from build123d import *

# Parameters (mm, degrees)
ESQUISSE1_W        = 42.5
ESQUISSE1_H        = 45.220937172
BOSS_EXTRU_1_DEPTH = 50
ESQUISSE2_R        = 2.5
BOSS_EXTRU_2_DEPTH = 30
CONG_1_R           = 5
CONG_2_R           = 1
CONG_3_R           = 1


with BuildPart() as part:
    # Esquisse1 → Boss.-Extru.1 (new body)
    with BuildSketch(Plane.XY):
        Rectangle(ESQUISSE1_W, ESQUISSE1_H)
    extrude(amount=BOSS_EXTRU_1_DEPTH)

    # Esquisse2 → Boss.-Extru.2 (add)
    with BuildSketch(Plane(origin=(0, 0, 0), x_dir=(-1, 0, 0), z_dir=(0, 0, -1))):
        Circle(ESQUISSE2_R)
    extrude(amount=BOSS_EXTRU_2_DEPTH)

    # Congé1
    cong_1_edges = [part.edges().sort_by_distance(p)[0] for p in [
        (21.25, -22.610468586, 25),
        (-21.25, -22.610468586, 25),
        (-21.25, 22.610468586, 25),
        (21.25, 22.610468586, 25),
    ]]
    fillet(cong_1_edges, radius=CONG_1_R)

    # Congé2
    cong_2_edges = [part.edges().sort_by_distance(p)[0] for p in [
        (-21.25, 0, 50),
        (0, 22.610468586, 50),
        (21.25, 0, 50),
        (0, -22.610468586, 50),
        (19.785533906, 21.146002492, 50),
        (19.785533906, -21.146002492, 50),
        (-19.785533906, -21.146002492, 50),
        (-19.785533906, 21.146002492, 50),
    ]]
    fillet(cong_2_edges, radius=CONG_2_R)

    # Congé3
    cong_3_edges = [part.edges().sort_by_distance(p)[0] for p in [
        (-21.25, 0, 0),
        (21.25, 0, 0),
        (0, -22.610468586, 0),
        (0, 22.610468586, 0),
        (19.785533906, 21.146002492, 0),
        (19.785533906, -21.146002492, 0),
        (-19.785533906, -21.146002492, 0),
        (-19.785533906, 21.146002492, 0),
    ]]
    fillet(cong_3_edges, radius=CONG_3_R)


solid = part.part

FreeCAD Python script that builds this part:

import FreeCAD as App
import Part
import Sketcher
Q = App.Units.Quantity


def edges_at(feature, points):
    """Names of the edges that pass closest to the given points."""
    edges = feature.Shape.Edges
    near = lambda p: min(range(len(edges)), key=lambda i: edges[i].distToShape(Part.Vertex(*p))[0])
    return sorted({f"Edge{near(p) + 1}" for p in points})

doc = App.newDocument("Part")
params = doc.addObject("Spreadsheet::Sheet", "Params")
for row, (alias, value) in enumerate([
    ("sketch1_width", "42.5 mm"),
    ("pad1_length", "50 mm"),
    ("sketch2_diameter", "5 mm"),
    ("pad2_length", "30 mm"),
    ("fillet_radius", "5 mm"),
    ("fillet2_radius", "1 mm"),
    ("fillet3_radius", "1 mm"),
], start=1):
    params.set(f"A{row}", alias)
    params.set(f"B{row}", "=" + value)
    params.setAlias(f"B{row}", alias)

body = doc.addObject("PartDesign::Body", "Body")

sketch1 = doc.addObject("Sketcher::SketchObject", "Sketch")
body.addObject(sketch1)
sketch1.AttachmentSupport = (doc.XY_Plane, [""])
sketch1.MapMode = "FlatFace"
sketch1.addGeometry([
    Part.LineSegment(App.Vector(-21, 23, 0), App.Vector(-21, -23, 0)),
    Part.LineSegment(App.Vector(-21, -23, 0), App.Vector(21, -23, 0)),
    Part.LineSegment(App.Vector(21, -23, 0), App.Vector(21, 23, 0)),
    Part.LineSegment(App.Vector(21, 23, 0), App.Vector(-21, 23, 0)),
], False)
sketch1.addConstraint([
    Sketcher.Constraint("Coincident", 0, 2, 1, 1),
    Sketcher.Constraint("Coincident", 1, 2, 2, 1),
    Sketcher.Constraint("Coincident", 2, 2, 3, 1),
    Sketcher.Constraint("Coincident", 3, 2, 0, 1),
    Sketcher.Constraint("Vertical", 0),
    Sketcher.Constraint("Horizontal", 1),
    Sketcher.Constraint("Vertical", 2),
    Sketcher.Constraint("Horizontal", 3),
    Sketcher.Constraint("Symmetric", 0, 2, 2, 2, -1, 1),
    Sketcher.Constraint("DistanceX", 1, 1, 1, 2, Q("42.5 mm")),
    Sketcher.Constraint("DistanceY", 0, 2, 0, 1, Q("45.220937 mm")),
])
sketch1.setExpression("Constraints[9]", "Params.sketch1_width")
pad1 = doc.addObject("PartDesign::Pad", "Pad")
body.addObject(pad1)
pad1.Profile = sketch1
pad1.setExpression("Length", "Params.pad1_length")

sketch2 = doc.addObject("Sketcher::SketchObject", "Sketch001")
body.addObject(sketch2)
sketch2.AttachmentSupport = (doc.XY_Plane, [""])
sketch2.MapMode = "FlatFace"
sketch2.addGeometry(Part.Circle(App.Vector(0, 0, 0), App.Vector(0, 0, 1), 2.5), False)
sketch2.addConstraint([
    Sketcher.Constraint("Coincident", 0, 3, -1, 1),
    Sketcher.Constraint("Diameter", 0, Q("5 mm")),
])
sketch2.setExpression("Constraints[1]", "Params.sketch2_diameter")
pad2 = doc.addObject("PartDesign::Pad", "Pad001")
body.addObject(pad2)
pad2.Profile = sketch2
pad2.setExpression("Length", "Params.pad2_length")
pad2.Reversed = True
doc.recompute()

fillet = doc.addObject("PartDesign::Fillet", "Fillet")
body.addObject(fillet)
fillet.Base = (pad2, edges_at(pad2, [
    (21.25, -22.61, 25),
    (-21.25, -22.61, 25),
    (-21.25, 22.61, 25),
    (21.25, 22.61, 25),
]))
fillet.setExpression("Radius", "Params.fillet_radius")
doc.recompute()

fillet2 = doc.addObject("PartDesign::Fillet", "Fillet001")
body.addObject(fillet2)
fillet2.Base = (fillet, edges_at(fillet, [
    (-21.25, 0, 50),
    (0, 22.61, 50),
    (21.25, 0, 50),
    (0, -22.61, 50),
    (19.786, 21.146, 50),
    (19.786, -21.146, 50),
    (-19.786, -21.146, 50),
    (-19.786, 21.146, 50),
]))
fillet2.setExpression("Radius", "Params.fillet2_radius")
doc.recompute()

fillet3 = doc.addObject("PartDesign::Fillet", "Fillet002")
body.addObject(fillet3)
fillet3.Base = (fillet2, edges_at(fillet2, [
    (-21.25, 0, 0),
    (21.25, 0, 0),
    (0, -22.61, 0),
    (0, 22.61, 0),
    (19.786, 21.146, 0),
    (19.786, -21.146, 0),
    (-19.786, -21.146, 0),
    (-19.786, 21.146, 0),
]))
fillet3.setExpression("Radius", "Params.fillet3_radius")

doc.recompute()
